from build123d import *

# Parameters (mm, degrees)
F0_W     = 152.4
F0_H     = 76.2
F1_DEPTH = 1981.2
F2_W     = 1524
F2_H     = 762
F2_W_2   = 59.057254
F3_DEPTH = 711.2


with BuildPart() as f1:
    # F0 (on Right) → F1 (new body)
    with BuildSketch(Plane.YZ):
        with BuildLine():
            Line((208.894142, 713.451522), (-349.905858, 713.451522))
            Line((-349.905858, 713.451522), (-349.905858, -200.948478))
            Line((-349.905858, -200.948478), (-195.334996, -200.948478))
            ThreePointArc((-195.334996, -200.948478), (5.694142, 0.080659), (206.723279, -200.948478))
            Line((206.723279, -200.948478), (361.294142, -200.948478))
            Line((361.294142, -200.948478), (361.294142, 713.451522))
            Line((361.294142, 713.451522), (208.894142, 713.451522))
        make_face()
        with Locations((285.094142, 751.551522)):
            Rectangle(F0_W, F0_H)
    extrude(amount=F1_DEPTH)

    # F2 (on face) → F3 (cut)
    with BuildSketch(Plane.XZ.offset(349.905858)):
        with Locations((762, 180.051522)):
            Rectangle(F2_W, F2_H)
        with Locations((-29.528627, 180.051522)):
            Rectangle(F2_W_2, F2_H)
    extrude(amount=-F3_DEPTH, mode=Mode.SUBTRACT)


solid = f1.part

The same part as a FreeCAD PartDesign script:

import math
import FreeCAD as App
import Part
import Sketcher
from FreeCAD import Vector
Q = App.Units.Quantity

doc = App.newDocument("Part")
body = doc.addObject("PartDesign::Body", "Body")

# Sketch on YZ plane
sketch1 = body.newObject("Sketcher::SketchObject", "Sketch")
sketch1.AttachmentSupport = (doc.getObject("YZ_Plane"), [""])
sketch1.MapMode = "FlatFace"
sketch1.addGeometry(Part.LineSegment(Vector(-349.905858, 713.451522, 0), Vector(-349.905858, -200.948478, 0)), False)
sketch1.addGeometry(Part.LineSegment(Vector(-349.905858, -200.948478, 0), Vector(-195.334996, -200.948478, 0)), False)
sketch1.addGeometry(Part.ArcOfCircle(Part.Circle(Vector(5.694141, -200.948478, 0), Vector(0, 0, 1), 201.029137), math.radians(0), math.radians(180)), False)
sketch1.addGeometry(Part.LineSegment(Vector(206.723279, -200.948478, 0), Vector(361.294142, -200.948478, 0)), False)
sketch1.addGeometry(Part.LineSegment(Vector(361.294142, -200.948478, 0), Vector(361.294142, 789.651522, 0)), False)
sketch1.addGeometry(Part.LineSegment(Vector(361.294142, 789.651522, 0), Vector(208.894142, 789.651522, 0)), False)
sketch1.addGeometry(Part.LineSegment(Vector(208.894142, 789.651522, 0), Vector(208.894142, 713.451522, 0)), False)
sketch1.addGeometry(Part.LineSegment(Vector(208.894142, 713.451522, 0), Vector(-349.905858, 713.451522, 0)), False)
sketch1.addConstraint(Sketcher.Constraint("Coincident", 0, 2, 1, 1))
sketch1.addConstraint(Sketcher.Constraint("Coincident", 1, 2, 2, 2))
sketch1.addConstraint(Sketcher.Constraint("Coincident", 2, 1, 3, 1))
sketch1.addConstraint(Sketcher.Constraint("Coincident", 3, 2, 4, 1))
sketch1.addConstraint(Sketcher.Constraint("Coincident", 4, 2, 5, 1))
sketch1.addConstraint(Sketcher.Constraint("Coincident", 5, 2, 6, 1))
sketch1.addConstraint(Sketcher.Constraint("Coincident", 6, 2, 7, 1))
sketch1.addConstraint(Sketcher.Constraint("Coincident", 7, 2, 0, 1))
sketch1.addConstraint(Sketcher.Constraint("Vertical", 0))
sketch1.addConstraint(Sketcher.Constraint("Horizontal", 1))
sketch1.addConstraint(Sketcher.Constraint("Horizontal", 3))
sketch1.addConstraint(Sketcher.Constraint("Vertical", 4))
sketch1.addConstraint(Sketcher.Constraint("Horizontal", 5))
sketch1.addConstraint(Sketcher.Constraint("Vertical", 6))
sketch1.addConstraint(Sketcher.Constraint("Horizontal", 7))
sketch1.addConstraint(Sketcher.Constraint("Horizontal", 2, 3, 0, 2))
sketch1.addConstraint(Sketcher.Constraint("Horizontal", 1, 2, 2, 1))
sketch1.addConstraint(Sketcher.Constraint("Equal", 1, 3))
sketch1.addConstraint(Sketcher.Constraint("DistanceX", 5, 2, 5, 1, Q("6 in")))
sketch1.addConstraint(Sketcher.Constraint("DistanceX", 7, 2, 7, 1, Q("22 in")))
sketch1.addConstraint(Sketcher.Constraint("DistanceY", 0, 2, 0, 1, Q("36 in")))
sketch1.addConstraint(Sketcher.Constraint("DistanceY", 4, 1, 4, 2, Q("39 in")))
sketch1.addConstraint(Sketcher.Constraint("Radius", 2, 201.029137))
sketch1.addConstraint(Sketcher.Constraint("DistanceX", -1, 1, 2, 3, 5.694141))
sketch1.addConstraint(Sketcher.Constraint("DistanceY", 2, 3, -1, 1, 200.948478))
pad1 = body.newObject("PartDesign::Pad", "Pad")
pad1.Profile = sketch1
pad1.Length = Q("78 in")

# Sketch on XZ plane
sketch2 = body.newObject("Sketcher::SketchObject", "Sketch001")
sketch2.AttachmentSupport = (doc.getObject("XZ_Plane"), [""])
sketch2.MapMode = "FlatFace"
sketch2.AttachmentOffset = App.Placement(Vector(0, 0, 349.905858), App.Rotation())
sketch2.addGeometry(Part.LineSegment(Vector(1524, -200.948478, 0), Vector(1524, 561.051522, 0)), False)
sketch2.addGeometry(Part.LineSegment(Vector(1524, 561.051522, 0), Vector(-59.057254, 561.051522, 0)), False)
sketch2.addGeometry(Part.LineSegment(Vector(-59.057254, 561.051522, 0), Vector(-59.057254, -200.948478, 0)), False)
sketch2.addGeometry(Part.LineSegment(Vector(-59.057254, -200.948478, 0), Vector(1524, -200.948478, 0)), False)
sketch2.addConstraint(Sketcher.Constraint("Coincident", 0, 2, 1, 1))
sketch2.addConstraint(Sketcher.Constraint("Coincident", 1, 2, 2, 1))
sketch2.addConstraint(Sketcher.Constraint("Coincident", 2, 2, 3, 1))
sketch2.addConstraint(Sketcher.Constraint("Coincident", 3, 2, 0, 1))
sketch2.addConstraint(Sketcher.Constraint("Vertical", 0))
sketch2.addConstraint(Sketcher.Constraint("Horizontal", 1))
sketch2.addConstraint(Sketcher.Constraint("Vertical", 2))
sketch2.addConstraint(Sketcher.Constraint("Horizontal", 3))
sketch2.addConstraint(Sketcher.Constraint("DistanceY", 0, 1, 0, 2, Q("30 in")))
sketch2.addConstraint(Sketcher.Constraint("DistanceX", -1, 1, 0, 2, Q("60 in")))
sketch2.addConstraint(Sketcher.Constraint("DistanceX", 1, 2, 1, 1, 1583.057254))
sketch2.addConstraint(Sketcher.Constraint("DistanceY", -1, 1, 0, 2, 561.051522))
pocket1 = body.newObject("PartDesign::Pocket", "Pocket")
pocket1.Profile = sketch2
pocket1.Length = Q("28 in")

doc.recompute()
